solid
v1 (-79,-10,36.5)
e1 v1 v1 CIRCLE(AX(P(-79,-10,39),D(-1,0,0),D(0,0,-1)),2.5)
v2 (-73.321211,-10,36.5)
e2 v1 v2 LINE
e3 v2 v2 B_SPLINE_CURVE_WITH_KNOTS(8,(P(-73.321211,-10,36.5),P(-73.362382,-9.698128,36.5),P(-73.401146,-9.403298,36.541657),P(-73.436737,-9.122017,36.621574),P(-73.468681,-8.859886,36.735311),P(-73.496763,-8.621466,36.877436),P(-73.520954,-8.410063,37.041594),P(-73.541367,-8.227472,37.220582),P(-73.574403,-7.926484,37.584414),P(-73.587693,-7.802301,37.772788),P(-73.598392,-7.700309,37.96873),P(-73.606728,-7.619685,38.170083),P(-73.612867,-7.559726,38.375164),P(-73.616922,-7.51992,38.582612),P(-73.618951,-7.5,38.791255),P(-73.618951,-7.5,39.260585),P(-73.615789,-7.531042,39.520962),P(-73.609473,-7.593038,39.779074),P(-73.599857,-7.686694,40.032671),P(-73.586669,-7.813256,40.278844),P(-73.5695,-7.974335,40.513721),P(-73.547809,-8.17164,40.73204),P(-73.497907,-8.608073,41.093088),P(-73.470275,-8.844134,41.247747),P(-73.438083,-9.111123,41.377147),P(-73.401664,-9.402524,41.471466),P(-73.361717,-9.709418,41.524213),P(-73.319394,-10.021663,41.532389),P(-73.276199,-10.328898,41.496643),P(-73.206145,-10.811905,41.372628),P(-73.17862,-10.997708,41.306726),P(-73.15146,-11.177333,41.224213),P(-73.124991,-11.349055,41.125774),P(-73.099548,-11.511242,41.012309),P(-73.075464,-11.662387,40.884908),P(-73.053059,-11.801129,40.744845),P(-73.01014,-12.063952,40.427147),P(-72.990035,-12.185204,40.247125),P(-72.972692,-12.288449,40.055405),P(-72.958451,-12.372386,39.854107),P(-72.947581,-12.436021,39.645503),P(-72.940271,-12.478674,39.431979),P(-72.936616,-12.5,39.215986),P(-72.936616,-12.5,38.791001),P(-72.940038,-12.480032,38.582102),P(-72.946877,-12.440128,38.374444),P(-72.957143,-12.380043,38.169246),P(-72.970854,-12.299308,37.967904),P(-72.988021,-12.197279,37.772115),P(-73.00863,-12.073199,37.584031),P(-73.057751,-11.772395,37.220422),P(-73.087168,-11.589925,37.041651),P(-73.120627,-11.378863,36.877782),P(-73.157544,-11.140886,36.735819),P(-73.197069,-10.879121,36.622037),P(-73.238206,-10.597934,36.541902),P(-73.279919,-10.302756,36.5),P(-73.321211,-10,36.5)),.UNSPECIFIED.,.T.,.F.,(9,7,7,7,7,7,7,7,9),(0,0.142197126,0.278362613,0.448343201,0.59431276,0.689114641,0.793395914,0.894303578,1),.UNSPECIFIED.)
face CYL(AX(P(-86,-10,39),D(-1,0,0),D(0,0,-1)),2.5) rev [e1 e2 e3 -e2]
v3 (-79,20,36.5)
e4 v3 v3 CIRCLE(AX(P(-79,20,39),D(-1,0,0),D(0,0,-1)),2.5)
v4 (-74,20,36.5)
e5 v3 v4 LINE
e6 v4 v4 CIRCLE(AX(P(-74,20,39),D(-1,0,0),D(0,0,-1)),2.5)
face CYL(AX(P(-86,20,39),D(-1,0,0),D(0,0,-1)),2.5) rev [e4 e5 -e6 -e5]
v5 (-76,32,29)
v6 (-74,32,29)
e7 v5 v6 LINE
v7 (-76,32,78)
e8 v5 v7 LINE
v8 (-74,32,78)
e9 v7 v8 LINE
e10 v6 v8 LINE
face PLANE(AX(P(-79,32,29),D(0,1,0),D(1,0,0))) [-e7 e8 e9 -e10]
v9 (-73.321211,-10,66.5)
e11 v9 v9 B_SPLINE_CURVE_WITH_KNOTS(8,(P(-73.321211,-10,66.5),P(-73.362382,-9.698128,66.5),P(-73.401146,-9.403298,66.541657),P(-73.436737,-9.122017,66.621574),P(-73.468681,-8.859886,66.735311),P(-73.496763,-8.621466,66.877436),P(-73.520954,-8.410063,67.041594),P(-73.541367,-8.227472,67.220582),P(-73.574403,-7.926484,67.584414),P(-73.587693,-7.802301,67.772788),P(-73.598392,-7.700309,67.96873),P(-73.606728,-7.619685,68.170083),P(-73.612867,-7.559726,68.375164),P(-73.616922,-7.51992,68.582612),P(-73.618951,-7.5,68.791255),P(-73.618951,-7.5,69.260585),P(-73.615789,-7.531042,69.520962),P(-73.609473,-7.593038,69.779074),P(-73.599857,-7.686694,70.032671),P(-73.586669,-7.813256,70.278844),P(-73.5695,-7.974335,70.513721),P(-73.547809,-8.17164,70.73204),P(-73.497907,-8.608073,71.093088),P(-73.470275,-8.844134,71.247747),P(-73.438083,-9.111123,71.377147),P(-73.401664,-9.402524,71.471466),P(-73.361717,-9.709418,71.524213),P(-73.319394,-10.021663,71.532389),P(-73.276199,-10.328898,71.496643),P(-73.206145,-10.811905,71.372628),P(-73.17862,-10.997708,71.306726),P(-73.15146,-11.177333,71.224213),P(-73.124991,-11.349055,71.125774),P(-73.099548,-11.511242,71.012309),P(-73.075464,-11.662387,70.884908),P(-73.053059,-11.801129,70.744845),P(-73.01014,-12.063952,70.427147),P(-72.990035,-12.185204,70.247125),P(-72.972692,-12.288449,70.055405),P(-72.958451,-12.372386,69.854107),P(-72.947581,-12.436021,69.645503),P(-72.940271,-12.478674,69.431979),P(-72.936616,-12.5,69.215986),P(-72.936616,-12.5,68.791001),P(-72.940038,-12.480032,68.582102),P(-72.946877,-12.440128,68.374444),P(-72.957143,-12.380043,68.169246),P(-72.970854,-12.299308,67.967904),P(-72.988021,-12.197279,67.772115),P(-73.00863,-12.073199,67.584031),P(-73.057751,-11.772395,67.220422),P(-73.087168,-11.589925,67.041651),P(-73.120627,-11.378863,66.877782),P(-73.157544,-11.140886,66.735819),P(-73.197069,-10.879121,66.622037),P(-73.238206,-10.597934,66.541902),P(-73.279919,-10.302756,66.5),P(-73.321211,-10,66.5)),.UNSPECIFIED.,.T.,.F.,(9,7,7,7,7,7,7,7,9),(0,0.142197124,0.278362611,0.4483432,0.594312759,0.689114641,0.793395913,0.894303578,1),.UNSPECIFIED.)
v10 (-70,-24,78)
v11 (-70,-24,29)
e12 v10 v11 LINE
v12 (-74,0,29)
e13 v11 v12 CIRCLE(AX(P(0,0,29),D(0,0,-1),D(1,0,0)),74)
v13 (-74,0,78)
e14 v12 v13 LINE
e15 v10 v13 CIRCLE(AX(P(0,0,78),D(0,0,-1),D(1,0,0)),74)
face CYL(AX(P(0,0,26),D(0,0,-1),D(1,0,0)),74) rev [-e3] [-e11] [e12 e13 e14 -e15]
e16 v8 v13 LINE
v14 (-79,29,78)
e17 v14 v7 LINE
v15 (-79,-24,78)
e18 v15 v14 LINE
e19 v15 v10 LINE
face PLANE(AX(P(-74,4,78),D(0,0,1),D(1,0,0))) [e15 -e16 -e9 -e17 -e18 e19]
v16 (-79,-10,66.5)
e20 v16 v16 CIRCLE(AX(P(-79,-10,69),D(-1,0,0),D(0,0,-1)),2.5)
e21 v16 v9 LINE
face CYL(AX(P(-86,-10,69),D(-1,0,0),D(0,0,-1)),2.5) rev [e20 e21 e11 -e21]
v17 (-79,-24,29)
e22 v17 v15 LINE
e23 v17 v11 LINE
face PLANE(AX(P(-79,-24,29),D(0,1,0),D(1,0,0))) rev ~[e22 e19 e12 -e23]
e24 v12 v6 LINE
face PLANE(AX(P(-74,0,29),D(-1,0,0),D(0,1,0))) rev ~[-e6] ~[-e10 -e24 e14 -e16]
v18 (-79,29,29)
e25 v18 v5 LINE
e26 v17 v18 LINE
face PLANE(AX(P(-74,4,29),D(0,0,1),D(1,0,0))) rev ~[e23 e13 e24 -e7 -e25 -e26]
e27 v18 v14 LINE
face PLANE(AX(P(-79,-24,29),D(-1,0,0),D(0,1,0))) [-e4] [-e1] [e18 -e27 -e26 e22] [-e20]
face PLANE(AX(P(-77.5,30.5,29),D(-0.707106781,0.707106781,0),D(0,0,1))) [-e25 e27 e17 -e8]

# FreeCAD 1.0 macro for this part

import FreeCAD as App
import Part
import Sketcher
from FreeCAD import Vector
Q = App.Units.Quantity


def edges_at(feature, points):
    """Names of the edges that pass closest to the given points."""
    edges = feature.Shape.Edges
    near = lambda p: min(range(len(edges)), key=lambda i: edges[i].distToShape(Part.Vertex(*p))[0])
    return sorted({f"Edge{near(p) + 1}" for p in points})

doc = App.newDocument("Part")
body = doc.addObject("PartDesign::Body", "Body")

# Sketch on XY plane
sketch1 = doc.addObject("Sketcher::SketchObject", "Sketch")
body.addObject(sketch1)
sketch1.AttachmentSupport = (doc.XY_Plane, [""])
sketch1.MapMode = "FlatFace"
sketch1.AttachmentOffset = App.Placement(Vector(0, 0, 29), App.Rotation())
sketch1.addGeometry(Part.LineSegment(Vector(-74, 74, 0), Vector(-74, 0, 0)), False)
sketch1.addGeometry(Part.LineSegment(Vector(-74, 0, 0), Vector(74, 0, 0)), False)
sketch1.addGeometry(Part.LineSegment(Vector(74, 0, 0), Vector(74, 74, 0)), False)
sketch1.addGeometry(Part.LineSegment(Vector(74, 74, 0), Vector(-74, 74, 0)), False)
sketch1.addConstraint(Sketcher.Constraint("Coincident", 0, 2, 1, 1))
sketch1.addConstraint(Sketcher.Constraint("Coincident", 1, 2, 2, 1))
sketch1.addConstraint(Sketcher.Constraint("Coincident", 2, 2, 3, 1))
sketch1.addConstraint(Sketcher.Constraint("Coincident", 3, 2, 0, 1))
sketch1.addConstraint(Sketcher.Constraint("Vertical", 0))
sketch1.addConstraint(Sketcher.Constraint("Horizontal", 1))
sketch1.addConstraint(Sketcher.Constraint("Vertical", 2))
sketch1.addConstraint(Sketcher.Constraint("Horizontal", 3))
sketch1.addConstraint(Sketcher.Constraint("Symmetric", 0, 2, 1, 2, -1, 1))
sketch1.addConstraint(Sketcher.Constraint("DistanceX", 1, 1, 1, 2, Q("148 mm")))
sketch1.addConstraint(Sketcher.Constraint("DistanceY", 0, 2, 0, 1, Q("74 mm")))
pad1 = doc.addObject("PartDesign::Pad", "Pad")
body.addObject(pad1)
pad1.Profile = sketch1
pad1.Length = 55
body2 = doc.addObject("PartDesign::Body", "Body001")

# Sketch on XY plane
sketch2 = doc.addObject("Sketcher::SketchObject", "Sketch001")
body2.addObject(sketch2)
sketch2.AttachmentSupport = (doc.getObject("XY_Plane001"), [""])
sketch2.MapMode = "FlatFace"
sketch2.AttachmentOffset = App.Placement(Vector(0, 0, 26), App.Rotation())
sketch2.addGeometry(Part.Circle(Vector(0, 0, 0), Vector(0, 0, 1), 74), False)
sketch2.addConstraint(Sketcher.Constraint("Coincident", 0, 3, -1, 1))
sketch2.addConstraint(Sketcher.Constraint("Diameter", 0, Q("148 mm")))
pad2 = doc.addObject("PartDesign::Pad", "Pad001")
body2.addObject(pad2)
pad2.Profile = sketch2
pad2.Length = 60
body3 = doc.addObject("PartDesign::Body", "Body002")

# Sketch on YZ plane
sketch3 = doc.addObject("Sketcher::SketchObject", "Sketch002")
body3.addObject(sketch3)
sketch3.AttachmentSupport = (doc.getObject("YZ_Plane002"), [""])
sketch3.MapMode = "FlatFace"
sketch3.AttachmentOffset = App.Placement(Vector(0, 0, -86), App.Rotation())
sketch3.addGeometry(Part.Circle(Vector(20, 39, 0), Vector(0, 0, 1), 2.5), False)
sketch3.addConstraint(Sketcher.Constraint("Diameter", 0, Q("5 mm")))
sketch3.addConstraint(Sketcher.Constraint("DistanceX", -1, 1, 0, 3, Q("20 mm")))
sketch3.addConstraint(Sketcher.Constraint("DistanceY", -1, 1, 0, 3, Q("39 mm")))
pad3 = doc.addObject("PartDesign::Pad", "Pad002")
body3.addObject(pad3)
pad3.Profile = sketch3
pad3.Length = 40
body4 = doc.addObject("PartDesign::Body", "Body003")

# Sketch on YZ plane
sketch4 = doc.addObject("Sketcher::SketchObject", "Sketch003")
body4.addObject(sketch4)
sketch4.AttachmentSupport = (doc.getObject("YZ_Plane003"), [""])
sketch4.MapMode = "FlatFace"
sketch4.AttachmentOffset = App.Placement(Vector(0, 0, -86), App.Rotation())
sketch4.addGeometry(Part.Circle(Vector(-10, 69, 0), Vector(0, 0, 1), 2.5), False)
sketch4.addConstraint(Sketcher.Constraint("Diameter", 0, Q("5 mm")))
sketch4.addConstraint(Sketcher.Constraint("DistanceX", 0, 3, -1, 1, Q("10 mm")))
sketch4.addConstraint(Sketcher.Constraint("DistanceY", -1, 1, 0, 3, Q("69 mm")))
pad4 = doc.addObject("PartDesign::Pad", "Pad003")
body4.addObject(pad4)
pad4.Profile = sketch4
pad4.Length = 40
body5 = doc.addObject("PartDesign::Body", "Body004")
body5.AllowCompound = True

# Sketch on YZ plane
sketch5 = doc.addObject("Sketcher::SketchObject", "Sketch004")
body5.addObject(sketch5)
sketch5.AttachmentSupport = (doc.getObject("YZ_Plane004"), [""])
sketch5.MapMode = "FlatFace"
sketch5.AttachmentOffset = App.Placement(Vector(0, 0, -86), App.Rotation())
sketch5.addGeometry(Part.Circle(Vector(-10, 39, 0), Vector(0, 0, 1), 2.5), False)
sketch5.addConstraint(Sketcher.Constraint("Diameter", 0, Q("5 mm")))
sketch5.addConstraint(Sketcher.Constraint("DistanceX", 0, 3, -1, 1, Q("10 mm")))
sketch5.addConstraint(Sketcher.Constraint("DistanceY", -1, 1, 0, 3, Q("39 mm")))
pad5 = doc.addObject("PartDesign::Pad", "Pad004")
body5.addObject(pad5)
pad5.Profile = sketch5
pad5.Length = 40
doc.recompute()

boolean = doc.addObject("PartDesign::Boolean", "Boolean")
body5.addObject(boolean)
boolean.Type = "Fuse"
boolean.addObjects([body3])
doc.recompute()

boolean2 = doc.addObject("PartDesign::Boolean", "Boolean001")
body5.addObject(boolean2)
boolean2.Type = "Fuse"
boolean2.addObjects([body4])
body6 = doc.addObject("PartDesign::Body", "Body005")

# Sketch on XY plane
sketch6 = doc.addObject("Sketcher::SketchObject", "Sketch005")
body6.addObject(sketch6)
sketch6.AttachmentSupport = (doc.getObject("XY_Plane005"), [""])
sketch6.MapMode = "FlatFace"
sketch6.AttachmentOffset = App.Placement(Vector(0, 0, 29), App.Rotation())
sketch6.addGeometry(Part.LineSegment(Vector(-79, 32, 0), Vector(-79, -24, 0)), False)
sketch6.addGeometry(Part.LineSegment(Vector(-79, -24, 0), Vector(-69, -24, 0)), False)
sketch6.addGeometry(Part.LineSegment(Vector(-69, -24, 0), Vector(-69, 32, 0)), False)
sketch6.addGeometry(Part.LineSegment(Vector(-69, 32, 0), Vector(-79, 32, 0)), False)
sketch6.addConstraint(Sketcher.Constraint("Coincident", 0, 2, 1, 1))
sketch6.addConstraint(Sketcher.Constraint("Coincident", 1, 2, 2, 1))
sketch6.addConstraint(Sketcher.Constraint("Coincident", 2, 2, 3, 1))
sketch6.addConstraint(Sketcher.Constraint("Coincident", 3, 2, 0, 1))
sketch6.addConstraint(Sketcher.Constraint("Vertical", 0))
sketch6.addConstraint(Sketcher.Constraint("Horizontal", 1))
sketch6.addConstraint(Sketcher.Constraint("Vertical", 2))
sketch6.addConstraint(Sketcher.Constraint("Horizontal", 3))
sketch6.addConstraint(Sketcher.Constraint("DistanceX", 1, 1, 1, 2, Q("10 mm")))
sketch6.addConstraint(Sketcher.Constraint("DistanceY", 0, 2, 0, 1, Q("56 mm")))
sketch6.addConstraint(Sketcher.Constraint("DistanceX", 0, 2, -1, 1, Q("79 mm")))
sketch6.addConstraint(Sketcher.Constraint("DistanceY", 0, 2, -1, 1, Q("24 mm")))
pad6 = doc.addObject("PartDesign::Pad", "Pad005")
body6.addObject(pad6)
pad6.Profile = sketch6
pad6.Length = 49
doc.recompute()

chamfer = doc.addObject("PartDesign::Chamfer", "Chamfer")
body6.addObject(chamfer)
chamfer.Base = (pad6, edges_at(pad6, [(-79, 32, 53.5)]))
chamfer.Size = 3
doc.recompute()

boolean3 = doc.addObject("PartDesign::Boolean", "Boolean002")
body6.addObject(boolean3)
boolean3.Type = "Cut"
boolean3.addObjects([body5])
doc.recompute()

boolean4 = doc.addObject("PartDesign::Boolean", "Boolean003")
body6.addObject(boolean4)
boolean4.Type = "Cut"
boolean4.addObjects([body2])
doc.recompute()

boolean5 = doc.addObject("PartDesign::Boolean", "Boolean004")
body6.addObject(boolean5)
boolean5.Type = "Cut"
boolean5.addObjects([body])

doc.recompute()
